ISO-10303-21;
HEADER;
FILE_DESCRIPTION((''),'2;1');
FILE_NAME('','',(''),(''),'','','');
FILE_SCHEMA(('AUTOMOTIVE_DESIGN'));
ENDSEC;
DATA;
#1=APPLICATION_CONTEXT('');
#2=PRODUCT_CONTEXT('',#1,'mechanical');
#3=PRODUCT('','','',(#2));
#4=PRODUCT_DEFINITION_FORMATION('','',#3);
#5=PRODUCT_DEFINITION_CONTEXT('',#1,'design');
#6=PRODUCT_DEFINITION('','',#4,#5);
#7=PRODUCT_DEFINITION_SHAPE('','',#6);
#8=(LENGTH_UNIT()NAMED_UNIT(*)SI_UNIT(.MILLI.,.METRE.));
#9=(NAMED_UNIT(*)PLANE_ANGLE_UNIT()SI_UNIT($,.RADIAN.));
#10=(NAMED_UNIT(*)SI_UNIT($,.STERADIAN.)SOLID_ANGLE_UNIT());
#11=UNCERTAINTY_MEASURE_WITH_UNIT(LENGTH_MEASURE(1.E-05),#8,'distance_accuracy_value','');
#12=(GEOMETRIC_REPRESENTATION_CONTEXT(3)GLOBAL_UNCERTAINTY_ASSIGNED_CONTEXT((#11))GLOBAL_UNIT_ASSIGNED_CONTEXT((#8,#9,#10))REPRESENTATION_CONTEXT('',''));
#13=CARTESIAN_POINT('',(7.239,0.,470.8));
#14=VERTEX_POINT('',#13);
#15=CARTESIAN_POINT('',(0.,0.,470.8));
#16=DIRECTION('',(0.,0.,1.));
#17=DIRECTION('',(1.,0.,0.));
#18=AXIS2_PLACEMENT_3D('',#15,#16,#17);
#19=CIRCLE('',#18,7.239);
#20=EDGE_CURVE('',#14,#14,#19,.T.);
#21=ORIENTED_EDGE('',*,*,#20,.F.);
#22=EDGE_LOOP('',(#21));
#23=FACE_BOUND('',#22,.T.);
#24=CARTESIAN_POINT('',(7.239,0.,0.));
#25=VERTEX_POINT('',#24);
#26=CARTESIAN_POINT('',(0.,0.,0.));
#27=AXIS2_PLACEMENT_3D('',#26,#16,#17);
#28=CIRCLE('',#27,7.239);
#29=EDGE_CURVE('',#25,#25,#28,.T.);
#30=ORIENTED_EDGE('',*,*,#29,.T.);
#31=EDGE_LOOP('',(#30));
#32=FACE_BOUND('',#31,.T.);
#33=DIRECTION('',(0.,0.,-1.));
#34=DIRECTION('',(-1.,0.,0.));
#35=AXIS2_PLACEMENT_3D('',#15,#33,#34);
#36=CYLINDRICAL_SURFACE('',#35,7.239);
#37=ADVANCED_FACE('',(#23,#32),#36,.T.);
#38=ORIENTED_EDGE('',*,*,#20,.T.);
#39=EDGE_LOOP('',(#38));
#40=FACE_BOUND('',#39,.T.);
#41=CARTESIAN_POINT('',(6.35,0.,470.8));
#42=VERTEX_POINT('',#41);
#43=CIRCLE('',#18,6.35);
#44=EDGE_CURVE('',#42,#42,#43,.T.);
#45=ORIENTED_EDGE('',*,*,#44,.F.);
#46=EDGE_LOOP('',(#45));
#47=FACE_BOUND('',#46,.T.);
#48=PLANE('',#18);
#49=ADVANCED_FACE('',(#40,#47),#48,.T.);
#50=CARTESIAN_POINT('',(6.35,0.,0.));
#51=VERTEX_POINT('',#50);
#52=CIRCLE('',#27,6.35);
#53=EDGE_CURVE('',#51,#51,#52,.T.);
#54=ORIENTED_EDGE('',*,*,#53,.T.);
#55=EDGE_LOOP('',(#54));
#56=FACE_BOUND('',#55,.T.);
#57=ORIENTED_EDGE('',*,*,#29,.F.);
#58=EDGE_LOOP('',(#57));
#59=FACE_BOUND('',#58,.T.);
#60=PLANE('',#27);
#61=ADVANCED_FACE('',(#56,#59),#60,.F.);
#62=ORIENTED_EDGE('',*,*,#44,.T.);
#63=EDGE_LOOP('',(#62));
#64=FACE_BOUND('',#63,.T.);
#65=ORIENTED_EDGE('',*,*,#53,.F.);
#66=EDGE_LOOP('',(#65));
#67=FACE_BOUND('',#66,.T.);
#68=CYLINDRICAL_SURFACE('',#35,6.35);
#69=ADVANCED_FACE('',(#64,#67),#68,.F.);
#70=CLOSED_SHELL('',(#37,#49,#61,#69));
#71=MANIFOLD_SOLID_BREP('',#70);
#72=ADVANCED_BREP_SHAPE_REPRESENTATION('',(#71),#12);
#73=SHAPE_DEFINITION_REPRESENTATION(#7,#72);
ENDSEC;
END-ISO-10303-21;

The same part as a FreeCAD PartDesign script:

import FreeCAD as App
import Part
import Sketcher
Q = App.Units.Quantity

doc = App.newDocument("Part")
body = doc.addObject("PartDesign::Body", "Body")

# Sketch on XY plane
sketch1 = doc.addObject("Sketcher::SketchObject", "Sketch")
body.addObject(sketch1)
sketch1.AttachmentSupport = (doc.XY_Plane, [""])
sketch1.MapMode = "FlatFace"
sketch1.addGeometry([
    Part.Circle(App.Vector(0, 0, 0), App.Vector(0, 0, 1), 7),
    Part.Circle(App.Vector(0, 0, 0), App.Vector(0, 0, 1), 6),
], False)
sketch1.addConstraint([
    Sketcher.Constraint("Coincident", 0, 3, -1, 1),
    Sketcher.Constraint("Coincident", 1, 3, -1, 1),
    Sketcher.Constraint("Diameter", 1, Q("0.5 in")),
    Sketcher.Constraint("Diameter", 0, Q("0.57 in")),
])
pad1 = doc.addObject("PartDesign::Pad", "Pad")
body.addObject(pad1)
pad1.Profile = sketch1
pad1.Length = 470.8

doc.recompute()
